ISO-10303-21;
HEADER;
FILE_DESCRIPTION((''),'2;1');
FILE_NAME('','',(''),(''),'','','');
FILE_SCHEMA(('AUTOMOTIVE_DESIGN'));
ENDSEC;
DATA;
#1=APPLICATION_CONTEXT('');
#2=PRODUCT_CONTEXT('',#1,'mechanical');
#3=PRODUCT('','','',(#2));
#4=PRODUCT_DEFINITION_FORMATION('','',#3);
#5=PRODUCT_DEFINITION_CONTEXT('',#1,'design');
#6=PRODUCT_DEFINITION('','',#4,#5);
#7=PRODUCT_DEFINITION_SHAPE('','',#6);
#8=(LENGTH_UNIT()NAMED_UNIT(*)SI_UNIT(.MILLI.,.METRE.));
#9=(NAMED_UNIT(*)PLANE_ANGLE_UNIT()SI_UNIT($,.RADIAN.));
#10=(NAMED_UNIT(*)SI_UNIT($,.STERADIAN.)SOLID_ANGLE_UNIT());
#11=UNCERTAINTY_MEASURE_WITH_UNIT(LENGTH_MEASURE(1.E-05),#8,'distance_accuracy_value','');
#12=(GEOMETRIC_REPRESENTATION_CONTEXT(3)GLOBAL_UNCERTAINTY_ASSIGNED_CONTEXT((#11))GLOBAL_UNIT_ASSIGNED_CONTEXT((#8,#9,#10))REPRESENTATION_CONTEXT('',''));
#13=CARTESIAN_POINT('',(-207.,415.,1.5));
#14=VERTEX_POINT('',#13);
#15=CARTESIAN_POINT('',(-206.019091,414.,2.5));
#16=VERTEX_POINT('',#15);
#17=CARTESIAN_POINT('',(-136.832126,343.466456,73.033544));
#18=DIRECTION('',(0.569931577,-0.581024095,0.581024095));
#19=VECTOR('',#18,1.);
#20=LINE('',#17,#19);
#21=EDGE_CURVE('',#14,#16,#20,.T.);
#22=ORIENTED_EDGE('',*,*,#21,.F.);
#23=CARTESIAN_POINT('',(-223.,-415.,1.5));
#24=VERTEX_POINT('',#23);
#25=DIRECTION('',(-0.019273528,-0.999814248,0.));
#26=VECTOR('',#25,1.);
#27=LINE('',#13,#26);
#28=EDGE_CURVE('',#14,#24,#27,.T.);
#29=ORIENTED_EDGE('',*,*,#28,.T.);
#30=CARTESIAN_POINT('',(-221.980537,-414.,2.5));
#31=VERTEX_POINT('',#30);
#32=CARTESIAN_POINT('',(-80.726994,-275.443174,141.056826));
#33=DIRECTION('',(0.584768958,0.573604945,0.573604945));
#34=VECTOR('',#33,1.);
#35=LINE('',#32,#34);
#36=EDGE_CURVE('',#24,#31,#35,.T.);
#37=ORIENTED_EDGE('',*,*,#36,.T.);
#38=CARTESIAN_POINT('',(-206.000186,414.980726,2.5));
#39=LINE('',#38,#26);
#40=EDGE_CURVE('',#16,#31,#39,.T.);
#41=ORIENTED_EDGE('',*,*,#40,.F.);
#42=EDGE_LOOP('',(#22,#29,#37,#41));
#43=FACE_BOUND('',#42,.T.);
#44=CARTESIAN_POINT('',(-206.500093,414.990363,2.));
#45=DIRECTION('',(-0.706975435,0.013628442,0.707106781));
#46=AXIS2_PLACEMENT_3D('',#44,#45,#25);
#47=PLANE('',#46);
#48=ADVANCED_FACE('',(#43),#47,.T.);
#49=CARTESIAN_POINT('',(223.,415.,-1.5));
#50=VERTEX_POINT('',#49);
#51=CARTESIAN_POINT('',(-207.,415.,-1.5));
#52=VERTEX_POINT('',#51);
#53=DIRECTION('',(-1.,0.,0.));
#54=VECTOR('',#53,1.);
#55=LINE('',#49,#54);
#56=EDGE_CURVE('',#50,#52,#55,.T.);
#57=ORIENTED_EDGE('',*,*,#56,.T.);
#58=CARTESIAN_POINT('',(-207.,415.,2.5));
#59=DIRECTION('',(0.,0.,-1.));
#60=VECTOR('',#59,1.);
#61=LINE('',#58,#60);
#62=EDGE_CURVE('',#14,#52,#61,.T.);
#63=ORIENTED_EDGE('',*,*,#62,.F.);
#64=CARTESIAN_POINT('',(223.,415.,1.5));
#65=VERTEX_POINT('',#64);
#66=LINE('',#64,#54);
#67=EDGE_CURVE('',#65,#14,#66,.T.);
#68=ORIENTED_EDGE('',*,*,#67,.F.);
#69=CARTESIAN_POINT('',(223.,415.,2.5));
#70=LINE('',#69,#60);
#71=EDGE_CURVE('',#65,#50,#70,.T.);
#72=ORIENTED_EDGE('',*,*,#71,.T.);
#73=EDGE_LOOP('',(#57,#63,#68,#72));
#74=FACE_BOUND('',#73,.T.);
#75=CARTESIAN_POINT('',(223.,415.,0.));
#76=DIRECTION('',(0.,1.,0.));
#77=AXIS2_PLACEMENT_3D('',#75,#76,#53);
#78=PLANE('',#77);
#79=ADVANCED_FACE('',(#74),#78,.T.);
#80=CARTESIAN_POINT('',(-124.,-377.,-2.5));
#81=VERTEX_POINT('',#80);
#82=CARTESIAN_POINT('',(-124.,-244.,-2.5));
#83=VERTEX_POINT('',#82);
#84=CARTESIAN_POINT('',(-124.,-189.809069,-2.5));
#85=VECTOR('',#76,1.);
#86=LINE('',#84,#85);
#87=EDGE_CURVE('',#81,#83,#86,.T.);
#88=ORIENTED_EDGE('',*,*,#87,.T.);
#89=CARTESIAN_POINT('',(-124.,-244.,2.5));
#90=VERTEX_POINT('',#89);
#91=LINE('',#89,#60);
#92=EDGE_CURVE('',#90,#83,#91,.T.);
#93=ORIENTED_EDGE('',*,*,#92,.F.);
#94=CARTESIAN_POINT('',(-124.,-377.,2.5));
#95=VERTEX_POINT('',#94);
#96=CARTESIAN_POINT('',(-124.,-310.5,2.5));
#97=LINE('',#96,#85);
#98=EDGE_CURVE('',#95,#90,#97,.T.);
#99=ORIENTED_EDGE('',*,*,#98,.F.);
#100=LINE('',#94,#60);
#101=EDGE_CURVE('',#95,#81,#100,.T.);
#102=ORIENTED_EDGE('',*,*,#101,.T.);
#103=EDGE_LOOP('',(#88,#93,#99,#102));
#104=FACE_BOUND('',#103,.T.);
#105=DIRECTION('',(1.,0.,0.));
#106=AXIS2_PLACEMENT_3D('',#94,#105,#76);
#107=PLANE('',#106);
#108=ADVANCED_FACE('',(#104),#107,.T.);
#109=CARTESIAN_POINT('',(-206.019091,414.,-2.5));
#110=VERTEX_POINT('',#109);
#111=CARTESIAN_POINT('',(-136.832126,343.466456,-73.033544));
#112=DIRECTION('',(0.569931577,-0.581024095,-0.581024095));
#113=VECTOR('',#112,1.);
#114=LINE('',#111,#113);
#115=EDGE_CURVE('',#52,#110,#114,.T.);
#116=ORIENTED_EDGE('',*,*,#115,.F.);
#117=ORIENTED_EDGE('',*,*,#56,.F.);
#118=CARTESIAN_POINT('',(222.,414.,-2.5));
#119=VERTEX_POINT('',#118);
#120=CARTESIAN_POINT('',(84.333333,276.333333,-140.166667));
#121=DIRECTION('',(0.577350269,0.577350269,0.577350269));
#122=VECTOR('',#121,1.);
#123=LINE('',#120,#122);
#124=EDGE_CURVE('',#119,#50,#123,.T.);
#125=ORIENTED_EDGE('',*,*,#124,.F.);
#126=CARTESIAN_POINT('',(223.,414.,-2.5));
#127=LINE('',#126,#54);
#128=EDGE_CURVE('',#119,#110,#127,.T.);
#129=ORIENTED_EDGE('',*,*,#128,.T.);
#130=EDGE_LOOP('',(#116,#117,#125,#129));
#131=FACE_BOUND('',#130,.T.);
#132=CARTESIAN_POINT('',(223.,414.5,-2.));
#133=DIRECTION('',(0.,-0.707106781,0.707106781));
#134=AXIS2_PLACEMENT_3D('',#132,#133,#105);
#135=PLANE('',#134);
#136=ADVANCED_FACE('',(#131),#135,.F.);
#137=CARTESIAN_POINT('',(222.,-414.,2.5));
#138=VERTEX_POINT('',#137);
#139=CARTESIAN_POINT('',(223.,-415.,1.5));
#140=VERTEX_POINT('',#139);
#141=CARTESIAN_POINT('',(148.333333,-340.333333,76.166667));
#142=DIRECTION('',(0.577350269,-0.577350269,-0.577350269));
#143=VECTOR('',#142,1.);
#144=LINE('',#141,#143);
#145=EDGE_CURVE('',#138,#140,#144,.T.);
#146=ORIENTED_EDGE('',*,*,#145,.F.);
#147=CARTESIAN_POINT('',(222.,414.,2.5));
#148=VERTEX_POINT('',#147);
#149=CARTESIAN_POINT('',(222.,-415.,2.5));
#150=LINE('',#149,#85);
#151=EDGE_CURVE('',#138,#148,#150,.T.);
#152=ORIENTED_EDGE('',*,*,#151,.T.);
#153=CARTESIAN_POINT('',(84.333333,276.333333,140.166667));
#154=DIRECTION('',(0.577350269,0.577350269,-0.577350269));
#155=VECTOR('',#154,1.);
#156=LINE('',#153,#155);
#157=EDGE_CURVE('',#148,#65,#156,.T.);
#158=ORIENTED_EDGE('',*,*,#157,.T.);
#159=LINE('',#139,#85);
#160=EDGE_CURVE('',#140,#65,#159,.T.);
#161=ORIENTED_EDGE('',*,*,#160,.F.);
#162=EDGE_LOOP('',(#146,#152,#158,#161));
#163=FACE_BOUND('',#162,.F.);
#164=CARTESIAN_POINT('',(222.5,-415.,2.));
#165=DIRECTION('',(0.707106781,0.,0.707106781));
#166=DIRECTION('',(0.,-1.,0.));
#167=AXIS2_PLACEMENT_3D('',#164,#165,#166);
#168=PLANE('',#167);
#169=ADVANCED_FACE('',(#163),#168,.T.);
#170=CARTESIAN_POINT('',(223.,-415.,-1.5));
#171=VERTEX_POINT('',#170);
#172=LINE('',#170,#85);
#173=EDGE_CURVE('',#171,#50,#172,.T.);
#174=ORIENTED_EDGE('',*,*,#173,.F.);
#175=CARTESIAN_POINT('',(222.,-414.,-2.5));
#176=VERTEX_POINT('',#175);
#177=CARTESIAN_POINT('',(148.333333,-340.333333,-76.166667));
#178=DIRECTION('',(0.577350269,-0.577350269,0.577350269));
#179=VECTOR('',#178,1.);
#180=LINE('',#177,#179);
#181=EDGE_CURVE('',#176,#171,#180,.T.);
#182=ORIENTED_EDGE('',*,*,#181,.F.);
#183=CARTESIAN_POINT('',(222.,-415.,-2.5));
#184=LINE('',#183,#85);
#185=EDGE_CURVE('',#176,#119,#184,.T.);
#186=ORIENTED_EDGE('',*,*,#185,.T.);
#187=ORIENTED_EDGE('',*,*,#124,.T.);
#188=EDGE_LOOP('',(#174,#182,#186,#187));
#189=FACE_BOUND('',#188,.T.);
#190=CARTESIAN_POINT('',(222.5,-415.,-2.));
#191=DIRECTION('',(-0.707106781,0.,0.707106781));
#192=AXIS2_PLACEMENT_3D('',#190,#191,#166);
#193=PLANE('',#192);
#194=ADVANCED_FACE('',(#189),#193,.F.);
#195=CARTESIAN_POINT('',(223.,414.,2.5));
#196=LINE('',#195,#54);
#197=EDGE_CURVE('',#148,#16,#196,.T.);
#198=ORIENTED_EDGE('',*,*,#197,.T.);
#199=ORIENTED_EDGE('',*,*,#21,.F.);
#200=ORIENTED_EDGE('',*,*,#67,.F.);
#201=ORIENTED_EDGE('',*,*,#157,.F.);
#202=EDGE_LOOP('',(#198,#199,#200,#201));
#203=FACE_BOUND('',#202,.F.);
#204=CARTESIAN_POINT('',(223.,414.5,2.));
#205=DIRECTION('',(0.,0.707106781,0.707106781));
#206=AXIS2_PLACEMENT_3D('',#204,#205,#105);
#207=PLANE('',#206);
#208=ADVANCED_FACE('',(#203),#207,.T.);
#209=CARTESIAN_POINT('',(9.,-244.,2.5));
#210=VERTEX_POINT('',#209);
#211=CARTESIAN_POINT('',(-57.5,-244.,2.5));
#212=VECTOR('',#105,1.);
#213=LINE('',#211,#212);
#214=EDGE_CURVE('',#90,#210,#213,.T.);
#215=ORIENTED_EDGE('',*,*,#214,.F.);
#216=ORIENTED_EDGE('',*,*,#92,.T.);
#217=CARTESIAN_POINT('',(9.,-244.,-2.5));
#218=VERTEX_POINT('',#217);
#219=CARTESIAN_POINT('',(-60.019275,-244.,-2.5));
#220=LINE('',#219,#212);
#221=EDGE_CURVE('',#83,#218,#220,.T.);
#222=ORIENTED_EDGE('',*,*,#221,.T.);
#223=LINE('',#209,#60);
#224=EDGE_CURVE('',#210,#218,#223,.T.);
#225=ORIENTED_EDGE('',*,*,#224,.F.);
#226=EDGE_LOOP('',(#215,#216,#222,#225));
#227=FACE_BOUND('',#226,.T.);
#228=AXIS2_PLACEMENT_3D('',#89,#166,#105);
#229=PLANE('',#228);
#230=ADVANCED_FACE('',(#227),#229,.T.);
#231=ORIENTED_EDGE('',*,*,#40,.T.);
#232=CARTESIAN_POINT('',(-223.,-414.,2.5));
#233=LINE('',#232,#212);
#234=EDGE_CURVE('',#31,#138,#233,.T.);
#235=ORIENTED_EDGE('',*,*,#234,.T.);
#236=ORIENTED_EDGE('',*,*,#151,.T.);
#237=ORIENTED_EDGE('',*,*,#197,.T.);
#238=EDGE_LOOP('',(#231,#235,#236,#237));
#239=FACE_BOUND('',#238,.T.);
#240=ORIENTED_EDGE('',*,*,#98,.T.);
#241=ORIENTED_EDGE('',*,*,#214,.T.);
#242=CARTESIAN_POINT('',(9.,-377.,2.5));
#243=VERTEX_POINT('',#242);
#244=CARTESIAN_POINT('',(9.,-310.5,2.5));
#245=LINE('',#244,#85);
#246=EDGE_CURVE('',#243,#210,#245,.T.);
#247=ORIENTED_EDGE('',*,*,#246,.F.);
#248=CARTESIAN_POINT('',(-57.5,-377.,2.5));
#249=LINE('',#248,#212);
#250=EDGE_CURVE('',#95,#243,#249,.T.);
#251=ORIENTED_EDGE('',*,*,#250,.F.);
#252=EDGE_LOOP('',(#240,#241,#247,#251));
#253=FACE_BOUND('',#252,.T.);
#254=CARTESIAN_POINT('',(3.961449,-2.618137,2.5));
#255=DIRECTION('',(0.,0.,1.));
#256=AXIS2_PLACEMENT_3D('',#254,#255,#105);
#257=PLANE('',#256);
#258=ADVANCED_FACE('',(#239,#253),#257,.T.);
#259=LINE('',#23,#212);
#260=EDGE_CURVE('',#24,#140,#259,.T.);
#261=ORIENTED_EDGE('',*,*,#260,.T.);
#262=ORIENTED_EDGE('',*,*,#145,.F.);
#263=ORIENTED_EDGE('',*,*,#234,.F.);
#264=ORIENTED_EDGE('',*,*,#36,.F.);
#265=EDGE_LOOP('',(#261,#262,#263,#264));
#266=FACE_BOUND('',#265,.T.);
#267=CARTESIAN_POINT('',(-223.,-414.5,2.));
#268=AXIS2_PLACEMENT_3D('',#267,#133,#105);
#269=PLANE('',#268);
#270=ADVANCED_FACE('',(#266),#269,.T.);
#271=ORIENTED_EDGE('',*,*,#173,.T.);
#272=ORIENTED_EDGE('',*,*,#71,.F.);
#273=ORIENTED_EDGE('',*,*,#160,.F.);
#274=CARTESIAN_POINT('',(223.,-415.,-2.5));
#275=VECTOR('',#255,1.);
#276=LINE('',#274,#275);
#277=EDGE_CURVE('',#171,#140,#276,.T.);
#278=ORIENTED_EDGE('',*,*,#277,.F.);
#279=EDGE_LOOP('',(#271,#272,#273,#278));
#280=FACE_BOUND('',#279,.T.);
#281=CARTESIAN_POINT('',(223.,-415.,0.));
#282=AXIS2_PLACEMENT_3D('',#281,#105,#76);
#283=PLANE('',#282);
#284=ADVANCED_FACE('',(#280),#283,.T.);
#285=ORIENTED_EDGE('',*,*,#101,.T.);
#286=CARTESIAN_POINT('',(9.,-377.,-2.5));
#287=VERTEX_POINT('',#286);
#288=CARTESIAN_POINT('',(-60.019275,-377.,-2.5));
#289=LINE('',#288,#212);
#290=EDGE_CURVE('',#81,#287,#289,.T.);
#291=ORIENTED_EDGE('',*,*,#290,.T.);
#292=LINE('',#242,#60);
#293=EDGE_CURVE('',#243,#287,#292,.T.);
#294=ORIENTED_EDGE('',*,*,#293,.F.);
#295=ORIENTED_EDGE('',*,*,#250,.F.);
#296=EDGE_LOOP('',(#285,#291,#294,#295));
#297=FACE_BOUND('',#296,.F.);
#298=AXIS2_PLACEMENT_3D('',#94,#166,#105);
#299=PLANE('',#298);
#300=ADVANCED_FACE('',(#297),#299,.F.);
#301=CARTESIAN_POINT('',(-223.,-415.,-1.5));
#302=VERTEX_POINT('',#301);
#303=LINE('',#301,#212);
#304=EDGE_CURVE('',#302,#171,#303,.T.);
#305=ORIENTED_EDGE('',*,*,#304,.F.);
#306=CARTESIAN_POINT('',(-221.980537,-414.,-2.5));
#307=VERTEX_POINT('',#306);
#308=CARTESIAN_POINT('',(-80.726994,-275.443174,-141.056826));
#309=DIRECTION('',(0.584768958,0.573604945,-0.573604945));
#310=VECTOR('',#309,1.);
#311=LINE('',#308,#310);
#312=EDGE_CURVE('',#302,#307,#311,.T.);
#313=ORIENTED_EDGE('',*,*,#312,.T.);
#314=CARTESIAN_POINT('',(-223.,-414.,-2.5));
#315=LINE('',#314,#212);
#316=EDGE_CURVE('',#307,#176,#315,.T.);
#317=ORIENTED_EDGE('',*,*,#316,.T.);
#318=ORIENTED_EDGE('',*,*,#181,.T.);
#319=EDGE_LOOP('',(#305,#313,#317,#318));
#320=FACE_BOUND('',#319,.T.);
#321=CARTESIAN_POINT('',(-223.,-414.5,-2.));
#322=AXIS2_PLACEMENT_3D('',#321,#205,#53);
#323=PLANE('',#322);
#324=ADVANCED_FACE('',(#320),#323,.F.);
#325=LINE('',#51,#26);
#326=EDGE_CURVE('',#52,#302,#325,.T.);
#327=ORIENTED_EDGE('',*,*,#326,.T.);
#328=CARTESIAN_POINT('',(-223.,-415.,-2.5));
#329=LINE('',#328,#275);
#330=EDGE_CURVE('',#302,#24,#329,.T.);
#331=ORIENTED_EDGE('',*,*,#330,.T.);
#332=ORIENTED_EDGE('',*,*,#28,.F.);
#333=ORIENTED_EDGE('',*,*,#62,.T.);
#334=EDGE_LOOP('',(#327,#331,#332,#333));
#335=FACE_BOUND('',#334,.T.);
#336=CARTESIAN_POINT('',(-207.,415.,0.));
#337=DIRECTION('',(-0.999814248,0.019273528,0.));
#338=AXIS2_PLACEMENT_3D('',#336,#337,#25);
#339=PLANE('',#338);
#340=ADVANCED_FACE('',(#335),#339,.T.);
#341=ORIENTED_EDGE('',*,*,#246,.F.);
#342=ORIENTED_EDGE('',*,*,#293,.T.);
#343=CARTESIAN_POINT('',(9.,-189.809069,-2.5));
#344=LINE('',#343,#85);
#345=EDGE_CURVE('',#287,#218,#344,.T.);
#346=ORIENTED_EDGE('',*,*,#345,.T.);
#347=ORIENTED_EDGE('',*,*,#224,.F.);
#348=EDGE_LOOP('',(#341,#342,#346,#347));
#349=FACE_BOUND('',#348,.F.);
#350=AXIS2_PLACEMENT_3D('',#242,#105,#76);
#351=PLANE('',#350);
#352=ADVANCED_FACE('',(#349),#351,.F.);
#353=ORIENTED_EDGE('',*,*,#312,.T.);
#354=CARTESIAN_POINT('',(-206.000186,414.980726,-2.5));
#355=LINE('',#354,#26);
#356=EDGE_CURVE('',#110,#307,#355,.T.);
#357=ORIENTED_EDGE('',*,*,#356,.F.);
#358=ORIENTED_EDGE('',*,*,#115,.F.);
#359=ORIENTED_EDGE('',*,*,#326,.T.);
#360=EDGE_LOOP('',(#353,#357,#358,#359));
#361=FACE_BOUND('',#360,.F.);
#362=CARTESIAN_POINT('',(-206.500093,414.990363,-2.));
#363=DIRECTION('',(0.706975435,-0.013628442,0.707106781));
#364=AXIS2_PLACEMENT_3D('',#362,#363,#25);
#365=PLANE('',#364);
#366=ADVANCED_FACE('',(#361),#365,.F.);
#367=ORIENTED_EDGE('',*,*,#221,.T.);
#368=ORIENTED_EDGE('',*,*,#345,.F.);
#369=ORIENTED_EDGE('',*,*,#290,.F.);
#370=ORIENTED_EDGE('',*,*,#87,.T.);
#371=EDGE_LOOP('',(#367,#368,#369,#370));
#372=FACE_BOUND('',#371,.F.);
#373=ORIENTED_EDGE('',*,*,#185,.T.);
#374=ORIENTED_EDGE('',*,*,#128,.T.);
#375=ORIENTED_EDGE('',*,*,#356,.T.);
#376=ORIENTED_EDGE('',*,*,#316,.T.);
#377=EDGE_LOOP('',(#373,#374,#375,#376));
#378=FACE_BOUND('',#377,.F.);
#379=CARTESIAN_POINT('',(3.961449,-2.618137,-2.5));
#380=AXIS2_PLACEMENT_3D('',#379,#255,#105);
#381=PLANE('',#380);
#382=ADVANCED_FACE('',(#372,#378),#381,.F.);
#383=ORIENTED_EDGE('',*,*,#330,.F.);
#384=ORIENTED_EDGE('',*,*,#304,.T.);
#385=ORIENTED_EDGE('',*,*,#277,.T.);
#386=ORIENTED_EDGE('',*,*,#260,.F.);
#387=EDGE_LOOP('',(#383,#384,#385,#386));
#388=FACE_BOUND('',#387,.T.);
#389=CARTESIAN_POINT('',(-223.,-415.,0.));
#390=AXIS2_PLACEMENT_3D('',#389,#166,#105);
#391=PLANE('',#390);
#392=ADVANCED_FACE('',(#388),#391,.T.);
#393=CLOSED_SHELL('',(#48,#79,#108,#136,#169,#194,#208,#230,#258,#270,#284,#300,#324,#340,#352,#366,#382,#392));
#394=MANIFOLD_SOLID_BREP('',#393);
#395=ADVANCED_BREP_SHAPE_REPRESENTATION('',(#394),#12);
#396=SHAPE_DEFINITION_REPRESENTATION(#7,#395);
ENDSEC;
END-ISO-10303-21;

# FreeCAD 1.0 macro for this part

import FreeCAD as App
import Part
import Sketcher


def edges_at(feature, points):
    """Names of the edges that pass closest to the given points."""
    edges = feature.Shape.Edges
    near = lambda p: min(range(len(edges)), key=lambda i: edges[i].distToShape(Part.Vertex(*p))[0])
    return sorted({f"Edge{near(p) + 1}" for p in points})


def add_polygon(sketch, points):
    """Adds a closed chain of lines whose ends are joined by coincident constraints."""
    first, n = sketch.GeometryCount, len(points)
    for a, b in zip(points, points[1:] + points[:1]):
        sketch.addGeometry(Part.LineSegment(App.Vector(*a, 0), App.Vector(*b, 0)), False)
    for i in range(n):
        sketch.addConstraint(Sketcher.Constraint("Coincident", first + i, 2, first + (i + 1) % n, 1))

doc = App.newDocument("Part")
params = doc.addObject("Spreadsheet::Sheet", "Params")
for row, (alias, value) in enumerate([
    ("sketch1_width", "446 mm"),
    ("sketch1_width2", "430 mm"),
    ("sketch1_height", "830 mm"),
    ("pad1_length", "5 mm"),
    ("sketch2_width", "133 mm"),
    ("chamfer_size", "1 mm"),
], start=1):
    params.set(f"A{row}", alias)
    params.set(f"B{row}", "=" + value)
    params.setAlias(f"B{row}", alias)

body = doc.addObject("PartDesign::Body", "Body")

# Sketch on XY plane
sketch1 = body.newObject("Sketcher::SketchObject", "Sketch")
sketch1.AttachmentSupport = (doc.getObject("XY_Plane"), [""])
sketch1.MapMode = "FlatFace"
add_polygon(sketch1, [(-207, 415), (-223, -415), (223, -415), (223, 415)])  # lines 0-3
sketch1.addConstraint(Sketcher.Constraint("Horizontal", 1))
sketch1.addConstraint(Sketcher.Constraint("Vertical", 2))
sketch1.addConstraint(Sketcher.Constraint("Horizontal", 3))
sketch1.addConstraint(Sketcher.Constraint("Symmetric", 0, 2, 2, 2, -1, 1))
sketch1.addConstraint(Sketcher.Constraint("DistanceX", 1, 1, 1, 2, 446.0))
sketch1.addConstraint(Sketcher.Constraint("DistanceX", 3, 2, 3, 1, 430.0))
sketch1.addConstraint(Sketcher.Constraint("DistanceY", 2, 1, 2, 2, 830.0))
sketch1.setExpression("Constraints[8]", "Params.sketch1_width")
sketch1.setExpression("Constraints[9]", "Params.sketch1_width2")
sketch1.setExpression("Constraints[10]", "Params.sketch1_height")
pad1 = body.newObject("PartDesign::Pad", "Pad")
pad1.Profile = sketch1
pad1.setExpression("Length", "Params.pad1_length")
pad1.Midplane = True

# Sketch on XY plane
sketch2 = body.newObject("Sketcher::SketchObject", "Sketch001")
sketch2.AttachmentSupport = (doc.getObject("XY_Plane"), [""])
sketch2.MapMode = "FlatFace"
sketch2.AttachmentOffset = App.Placement(App.Vector(0, 0, 2.5), App.Rotation())
add_polygon(sketch2, [(-124, -244), (-124, -377), (9, -377), (9, -244)])  # lines 0-3
sketch2.addConstraint(Sketcher.Constraint("Vertical", 0))
sketch2.addConstraint(Sketcher.Constraint("Horizontal", 1))
sketch2.addConstraint(Sketcher.Constraint("Vertical", 2))
sketch2.addConstraint(Sketcher.Constraint("Horizontal", 3))
sketch2.addConstraint(Sketcher.Constraint("Equal", 3, 0))
sketch2.addConstraint(Sketcher.Constraint("DistanceX", 1, 1, 1, 2, 133.0))
sketch2.addConstraint(Sketcher.Constraint("DistanceX", 0, 2, -1, 1, 124.0))
sketch2.addConstraint(Sketcher.Constraint("DistanceY", 0, 2, -1, 1, 377.0))
sketch2.setExpression("Constraints[9]", "Params.sketch2_width")
pocket1 = body.newObject("PartDesign::Pocket", "Pocket")
pocket1.Profile = sketch2
pocket1.Type = "ThroughAll"
doc.recompute()

chamfer = body.newObject("PartDesign::Chamfer", "Chamfer")
chamfer.Base = (pocket1, edges_at(pocket1, [
    (-215, 0, 2.5),
    (-215, 0, -2.5),
    (8, 415, 2.5),
    (8, 415, -2.5),
    (223, 0, 2.5),
    (223, 0, -2.5),
    (0, -415, 2.5),
    (0, -415, -2.5),
]))
chamfer.setExpression("Size", "Params.chamfer_size")

doc.recompute()
